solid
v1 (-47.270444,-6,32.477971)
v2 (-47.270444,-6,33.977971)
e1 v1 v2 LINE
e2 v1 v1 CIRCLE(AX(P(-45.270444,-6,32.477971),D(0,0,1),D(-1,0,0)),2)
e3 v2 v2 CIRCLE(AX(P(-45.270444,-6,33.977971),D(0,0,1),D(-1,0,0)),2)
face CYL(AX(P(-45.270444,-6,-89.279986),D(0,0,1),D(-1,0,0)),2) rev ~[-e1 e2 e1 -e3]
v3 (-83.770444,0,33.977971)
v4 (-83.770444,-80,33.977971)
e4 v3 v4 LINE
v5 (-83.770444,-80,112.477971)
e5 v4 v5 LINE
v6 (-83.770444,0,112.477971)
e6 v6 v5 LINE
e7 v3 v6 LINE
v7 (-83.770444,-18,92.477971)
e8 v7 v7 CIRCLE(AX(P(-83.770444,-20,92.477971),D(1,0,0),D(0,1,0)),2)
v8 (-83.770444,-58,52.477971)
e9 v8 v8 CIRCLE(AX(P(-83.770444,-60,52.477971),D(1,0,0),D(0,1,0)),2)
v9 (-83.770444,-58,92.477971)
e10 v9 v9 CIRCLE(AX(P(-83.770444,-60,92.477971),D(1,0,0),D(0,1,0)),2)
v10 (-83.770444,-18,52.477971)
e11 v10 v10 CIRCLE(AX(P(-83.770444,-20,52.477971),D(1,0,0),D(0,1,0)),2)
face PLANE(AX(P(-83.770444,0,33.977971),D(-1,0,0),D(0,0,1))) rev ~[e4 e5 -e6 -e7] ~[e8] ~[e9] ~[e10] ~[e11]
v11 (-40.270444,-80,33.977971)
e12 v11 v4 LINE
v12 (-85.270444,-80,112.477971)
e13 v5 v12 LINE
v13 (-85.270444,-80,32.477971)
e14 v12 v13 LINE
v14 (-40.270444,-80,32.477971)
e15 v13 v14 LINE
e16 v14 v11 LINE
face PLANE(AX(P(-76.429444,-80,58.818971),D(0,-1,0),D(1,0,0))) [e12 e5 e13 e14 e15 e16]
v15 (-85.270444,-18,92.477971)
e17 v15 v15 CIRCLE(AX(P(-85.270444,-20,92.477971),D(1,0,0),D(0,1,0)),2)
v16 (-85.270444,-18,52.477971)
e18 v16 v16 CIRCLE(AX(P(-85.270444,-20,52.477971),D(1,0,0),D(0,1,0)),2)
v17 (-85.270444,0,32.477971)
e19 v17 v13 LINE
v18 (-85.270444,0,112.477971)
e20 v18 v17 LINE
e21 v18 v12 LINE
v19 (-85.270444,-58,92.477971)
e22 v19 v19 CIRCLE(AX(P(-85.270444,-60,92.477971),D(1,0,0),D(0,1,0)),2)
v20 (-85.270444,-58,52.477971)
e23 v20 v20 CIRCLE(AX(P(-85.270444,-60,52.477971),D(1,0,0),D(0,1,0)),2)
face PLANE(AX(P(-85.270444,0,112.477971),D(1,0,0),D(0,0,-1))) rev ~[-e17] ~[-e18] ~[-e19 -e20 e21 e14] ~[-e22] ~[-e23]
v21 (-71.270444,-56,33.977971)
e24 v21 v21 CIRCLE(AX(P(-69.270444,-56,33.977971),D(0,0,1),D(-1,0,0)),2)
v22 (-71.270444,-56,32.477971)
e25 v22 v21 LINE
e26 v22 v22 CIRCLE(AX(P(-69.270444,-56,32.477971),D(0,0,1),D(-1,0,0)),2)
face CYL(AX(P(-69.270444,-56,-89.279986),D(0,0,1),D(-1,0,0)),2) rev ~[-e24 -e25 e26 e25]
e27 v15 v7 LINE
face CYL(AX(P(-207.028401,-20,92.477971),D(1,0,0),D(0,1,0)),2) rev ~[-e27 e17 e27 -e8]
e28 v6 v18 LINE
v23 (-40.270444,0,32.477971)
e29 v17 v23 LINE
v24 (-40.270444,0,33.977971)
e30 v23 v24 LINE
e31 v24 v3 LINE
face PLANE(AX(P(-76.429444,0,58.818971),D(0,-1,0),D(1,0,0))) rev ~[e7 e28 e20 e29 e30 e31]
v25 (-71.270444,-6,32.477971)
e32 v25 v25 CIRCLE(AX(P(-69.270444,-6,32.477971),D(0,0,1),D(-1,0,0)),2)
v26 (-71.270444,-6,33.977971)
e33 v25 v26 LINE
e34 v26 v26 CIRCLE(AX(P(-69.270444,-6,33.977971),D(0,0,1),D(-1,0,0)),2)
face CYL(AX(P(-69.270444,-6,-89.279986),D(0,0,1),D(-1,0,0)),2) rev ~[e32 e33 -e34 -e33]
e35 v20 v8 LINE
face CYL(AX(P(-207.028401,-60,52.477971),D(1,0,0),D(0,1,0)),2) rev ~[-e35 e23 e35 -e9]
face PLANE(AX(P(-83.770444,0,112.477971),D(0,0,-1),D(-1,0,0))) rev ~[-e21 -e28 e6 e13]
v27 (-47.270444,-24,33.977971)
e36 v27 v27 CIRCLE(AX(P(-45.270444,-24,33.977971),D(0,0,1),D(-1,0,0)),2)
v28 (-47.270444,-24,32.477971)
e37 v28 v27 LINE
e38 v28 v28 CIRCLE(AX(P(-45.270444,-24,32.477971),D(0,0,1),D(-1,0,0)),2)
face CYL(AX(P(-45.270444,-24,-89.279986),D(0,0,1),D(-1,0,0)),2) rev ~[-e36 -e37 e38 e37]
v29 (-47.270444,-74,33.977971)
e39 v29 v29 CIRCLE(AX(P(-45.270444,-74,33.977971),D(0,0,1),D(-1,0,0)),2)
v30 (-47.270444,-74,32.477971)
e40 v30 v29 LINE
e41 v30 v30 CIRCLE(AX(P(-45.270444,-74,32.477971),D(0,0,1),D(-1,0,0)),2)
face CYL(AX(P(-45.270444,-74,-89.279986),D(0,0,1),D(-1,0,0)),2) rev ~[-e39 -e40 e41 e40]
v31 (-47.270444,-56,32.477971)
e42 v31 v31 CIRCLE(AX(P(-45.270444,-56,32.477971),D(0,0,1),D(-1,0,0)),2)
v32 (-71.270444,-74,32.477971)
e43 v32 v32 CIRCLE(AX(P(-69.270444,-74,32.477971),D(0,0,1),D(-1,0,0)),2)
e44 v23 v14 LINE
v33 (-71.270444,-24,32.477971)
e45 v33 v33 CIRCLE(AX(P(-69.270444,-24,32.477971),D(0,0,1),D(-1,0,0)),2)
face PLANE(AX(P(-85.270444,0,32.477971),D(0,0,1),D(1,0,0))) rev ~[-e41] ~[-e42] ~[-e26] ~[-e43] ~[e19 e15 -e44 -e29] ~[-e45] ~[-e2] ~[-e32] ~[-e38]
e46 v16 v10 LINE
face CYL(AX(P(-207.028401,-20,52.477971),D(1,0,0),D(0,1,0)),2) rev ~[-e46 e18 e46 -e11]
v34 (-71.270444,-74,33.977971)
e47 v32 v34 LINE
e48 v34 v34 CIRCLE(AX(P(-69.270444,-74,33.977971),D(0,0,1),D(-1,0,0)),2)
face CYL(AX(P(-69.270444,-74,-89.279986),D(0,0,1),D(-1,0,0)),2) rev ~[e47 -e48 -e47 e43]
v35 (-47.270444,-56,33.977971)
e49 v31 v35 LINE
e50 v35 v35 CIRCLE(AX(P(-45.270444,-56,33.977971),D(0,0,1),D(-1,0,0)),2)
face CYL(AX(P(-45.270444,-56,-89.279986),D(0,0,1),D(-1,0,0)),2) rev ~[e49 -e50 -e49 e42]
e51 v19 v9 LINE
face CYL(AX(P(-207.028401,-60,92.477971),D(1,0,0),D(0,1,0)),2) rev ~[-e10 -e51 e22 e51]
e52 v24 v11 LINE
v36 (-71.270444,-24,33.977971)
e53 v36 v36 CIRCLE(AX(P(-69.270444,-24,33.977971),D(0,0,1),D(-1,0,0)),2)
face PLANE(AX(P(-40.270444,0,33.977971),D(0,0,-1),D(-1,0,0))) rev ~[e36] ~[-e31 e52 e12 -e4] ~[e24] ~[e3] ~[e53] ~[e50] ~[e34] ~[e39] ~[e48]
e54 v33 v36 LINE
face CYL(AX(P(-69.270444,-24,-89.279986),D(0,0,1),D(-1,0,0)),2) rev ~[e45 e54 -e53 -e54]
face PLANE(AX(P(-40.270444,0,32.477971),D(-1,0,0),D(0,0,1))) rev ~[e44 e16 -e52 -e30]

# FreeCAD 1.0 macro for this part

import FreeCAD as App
import Part
import Sketcher
from FreeCAD import Vector

doc = App.newDocument("Part")
params = doc.addObject("Spreadsheet::Sheet", "Params")
for row, (alias, value) in enumerate([
    ("sketch1_width", "45 mm"),
    ("sketch1_height", "80 mm"),
    ("sketch1_width2", "1.5 mm"),
    ("pad1_length", "80 mm"),
    ("sketch2_diameter", "4 mm"),
    ("hole_diameter", "4 mm"),
    ("sketch3_diameter", "4 mm"),
    ("hole2_diameter", "4 mm"),
], start=1):
    params.set(f"A{row}", alias)
    params.set(f"B{row}", "=" + value)
    params.setAlias(f"B{row}", alias)

body = doc.addObject("PartDesign::Body", "Body")

# Sketch on XZ plane
sketch1 = doc.addObject("Sketcher::SketchObject", "Sketch")
body.addObject(sketch1)
sketch1.AttachmentSupport = (doc.XZ_Plane, [""])
sketch1.MapMode = "FlatFace"
sketch1.addGeometry([
    Part.LineSegment(Vector(-83.8, 112.5, 0), Vector(-85.3, 112.5, 0)),  # 0
    Part.LineSegment(Vector(-85.3, 112.5, 0), Vector(-85.3, 32.5, 0)),  # 1
    Part.LineSegment(Vector(-85.3, 32.5, 0), Vector(-40.3, 32.5, 0)),  # 2
    Part.LineSegment(Vector(-40.3, 32.5, 0), Vector(-40.3, 34, 0)),  # 3
    Part.LineSegment(Vector(-40.3, 34, 0), Vector(-83.8, 34, 0)),  # 4
    Part.LineSegment(Vector(-83.8, 34, 0), Vector(-83.8, 112.5, 0)),  # 5
], False)
sketch1.addConstraint([
    Sketcher.Constraint("Coincident", 0, 2, 1, 1),
    Sketcher.Constraint("Coincident", 1, 2, 2, 1),
    Sketcher.Constraint("Coincident", 2, 2, 3, 1),
    Sketcher.Constraint("Coincident", 3, 2, 4, 1),
    Sketcher.Constraint("Coincident", 4, 2, 5, 1),
    Sketcher.Constraint("Coincident", 5, 2, 0, 1),
    Sketcher.Constraint("Horizontal", 0),
    Sketcher.Constraint("Vertical", 1),
    Sketcher.Constraint("Horizontal", 2),
    Sketcher.Constraint("Vertical", 3),
    Sketcher.Constraint("Horizontal", 4),
    Sketcher.Constraint("Vertical", 5),
    Sketcher.Constraint("Equal", 0, 3),
    Sketcher.Constraint("DistanceX", 2, 1, 2, 2, 45.0),
    Sketcher.Constraint("DistanceY", 1, 2, 1, 1, 80.0),
    Sketcher.Constraint("DistanceX", 0, 2, 0, 1, 1.5),
    Sketcher.Constraint("DistanceY", -1, 1, 0, 2, 112.477971),
    Sketcher.Constraint("DistanceX", 0, 2, -1, 1, 85.270444),
])
sketch1.setExpression("Constraints[13]", "Params.sketch1_width")
sketch1.setExpression("Constraints[14]", "Params.sketch1_height")
sketch1.setExpression("Constraints[15]", "Params.sketch1_width2")
pad1 = doc.addObject("PartDesign::Pad", "Pad")
body.addObject(pad1)
pad1.Profile = sketch1
pad1.setExpression("Length", "Params.pad1_length")

# Sketch on XY plane
sketch2 = doc.addObject("Sketcher::SketchObject", "Sketch001")
body.addObject(sketch2)
sketch2.AttachmentSupport = (doc.XY_Plane, [""])
sketch2.MapMode = "FlatFace"
sketch2.AttachmentOffset = App.Placement(Vector(0, 0, 32.477971), App.Rotation())
sketch2.addGeometry([
    Part.Circle(Vector(-45.3, -74, 0), Vector(0, 0, 1), 2),  # 0
    Part.Circle(Vector(-69.3, -74, 0), Vector(0, 0, 1), 2),  # 1
    Part.Circle(Vector(-69.3, -56, 0), Vector(0, 0, 1), 2),  # 2
    Part.Circle(Vector(-45.3, -56, 0), Vector(0, 0, 1), 2),  # 3
    Part.Circle(Vector(-45.3, -24, 0), Vector(0, 0, 1), 2),  # 4
    Part.Circle(Vector(-45.3, -6, 0), Vector(0, 0, 1), 2),  # 5
    Part.Circle(Vector(-69.3, -6, 0), Vector(0, 0, 1), 2),  # 6
    Part.Circle(Vector(-69.3, -24, 0), Vector(0, 0, 1), 2),  # 7
], False)
sketch2.addConstraint([
    Sketcher.Constraint("Equal", 0, 1),
    Sketcher.Constraint("Equal", 1, 2),
    Sketcher.Constraint("Equal", 2, 3),
    Sketcher.Constraint("Equal", 3, 4),
    Sketcher.Constraint("Equal", 4, 5),
    Sketcher.Constraint("Equal", 5, 6),
    Sketcher.Constraint("Equal", 6, 7),
    Sketcher.Constraint("Horizontal", 0, 3, 1, 3),
    Sketcher.Constraint("Horizontal", 2, 3, 3, 3),
    Sketcher.Constraint("Horizontal", 5, 3, 6, 3),
    Sketcher.Constraint("Horizontal", 4, 3, 7, 3),
    Sketcher.Constraint("Vertical", 1, 3, 2, 3),
    Sketcher.Constraint("Vertical", 0, 3, 3, 3),
    Sketcher.Constraint("Vertical", 3, 3, 4, 3),
    Sketcher.Constraint("Vertical", 4, 3, 5, 3),
    Sketcher.Constraint("Vertical", 2, 3, 6, 3),
    Sketcher.Constraint("Vertical", 6, 3, 7, 3),
    Sketcher.Constraint("Diameter", 0, 4.0),
    Sketcher.Constraint("DistanceY", 0, 3, -1, 1, 74.0),
    Sketcher.Constraint("DistanceY", 2, 3, -1, 1, 56.0),
    Sketcher.Constraint("DistanceY", 4, 3, -1, 1, 24.0),
    Sketcher.Constraint("DistanceY", 5, 3, -1, 1, 6.0),
    Sketcher.Constraint("DistanceX", 1, 3, 0, 3, 24.0),
    Sketcher.Constraint("DistanceX", 0, 3, -1, 1, 45.270444),
])
sketch2.setExpression("Constraints[17]", "Params.sketch2_diameter")
doc.recompute()
hole = doc.addObject("PartDesign::Hole", "Hole")
body.addObject(hole)
hole.Profile = sketch2
hole.ThreadType = "None"
hole.setExpression("Diameter", "Params.hole_diameter")
hole.DepthType = "ThroughAll"
hole.Reversed = True

# Sketch on YZ plane
sketch3 = doc.addObject("Sketcher::SketchObject", "Sketch002")
body.addObject(sketch3)
sketch3.AttachmentSupport = (doc.YZ_Plane, [""])
sketch3.MapMode = "FlatFace"
sketch3.AttachmentOffset = App.Placement(Vector(0, 0, -85.270444), App.Rotation())
sketch3.addGeometry([
    Part.Circle(Vector(-20, 52.5, 0), Vector(0, 0, 1), 2),
    Part.Circle(Vector(-60, 52.5, 0), Vector(0, 0, 1), 2),
    Part.Circle(Vector(-60, 92.5, 0), Vector(0, 0, 1), 2),
    Part.Circle(Vector(-20, 92.5, 0), Vector(0, 0, 1), 2),
], False)
sketch3.addConstraint([
    Sketcher.Constraint("Equal", 0, 1),
    Sketcher.Constraint("Equal", 1, 2),
    Sketcher.Constraint("Equal", 2, 3),
    Sketcher.Constraint("Horizontal", 0, 3, 1, 3),
    Sketcher.Constraint("Horizontal", 2, 3, 3, 3),
    Sketcher.Constraint("Vertical", 1, 3, 2, 3),
    Sketcher.Constraint("Vertical", 0, 3, 3, 3),
    Sketcher.Constraint("Diameter", 0, 4.0),
    Sketcher.Constraint("DistanceX", 0, 3, -1, 1, 20.0),
    Sketcher.Constraint("DistanceX", 1, 3, -1, 1, 60.0),
    Sketcher.Constraint("DistanceY", 1, 3, 2, 3, 40.0),
    Sketcher.Constraint("DistanceY", -1, 1, 0, 3, 52.477971),
])
sketch3.setExpression("Constraints[7]", "Params.sketch3_diameter")
doc.recompute()
hole2 = doc.addObject("PartDesign::Hole", "Hole001")
body.addObject(hole2)
hole2.Profile = sketch3
hole2.ThreadType = "None"
hole2.setExpression("Diameter", "Params.hole2_diameter")
hole2.DepthType = "ThroughAll"
hole2.Reversed = True

doc.recompute()
